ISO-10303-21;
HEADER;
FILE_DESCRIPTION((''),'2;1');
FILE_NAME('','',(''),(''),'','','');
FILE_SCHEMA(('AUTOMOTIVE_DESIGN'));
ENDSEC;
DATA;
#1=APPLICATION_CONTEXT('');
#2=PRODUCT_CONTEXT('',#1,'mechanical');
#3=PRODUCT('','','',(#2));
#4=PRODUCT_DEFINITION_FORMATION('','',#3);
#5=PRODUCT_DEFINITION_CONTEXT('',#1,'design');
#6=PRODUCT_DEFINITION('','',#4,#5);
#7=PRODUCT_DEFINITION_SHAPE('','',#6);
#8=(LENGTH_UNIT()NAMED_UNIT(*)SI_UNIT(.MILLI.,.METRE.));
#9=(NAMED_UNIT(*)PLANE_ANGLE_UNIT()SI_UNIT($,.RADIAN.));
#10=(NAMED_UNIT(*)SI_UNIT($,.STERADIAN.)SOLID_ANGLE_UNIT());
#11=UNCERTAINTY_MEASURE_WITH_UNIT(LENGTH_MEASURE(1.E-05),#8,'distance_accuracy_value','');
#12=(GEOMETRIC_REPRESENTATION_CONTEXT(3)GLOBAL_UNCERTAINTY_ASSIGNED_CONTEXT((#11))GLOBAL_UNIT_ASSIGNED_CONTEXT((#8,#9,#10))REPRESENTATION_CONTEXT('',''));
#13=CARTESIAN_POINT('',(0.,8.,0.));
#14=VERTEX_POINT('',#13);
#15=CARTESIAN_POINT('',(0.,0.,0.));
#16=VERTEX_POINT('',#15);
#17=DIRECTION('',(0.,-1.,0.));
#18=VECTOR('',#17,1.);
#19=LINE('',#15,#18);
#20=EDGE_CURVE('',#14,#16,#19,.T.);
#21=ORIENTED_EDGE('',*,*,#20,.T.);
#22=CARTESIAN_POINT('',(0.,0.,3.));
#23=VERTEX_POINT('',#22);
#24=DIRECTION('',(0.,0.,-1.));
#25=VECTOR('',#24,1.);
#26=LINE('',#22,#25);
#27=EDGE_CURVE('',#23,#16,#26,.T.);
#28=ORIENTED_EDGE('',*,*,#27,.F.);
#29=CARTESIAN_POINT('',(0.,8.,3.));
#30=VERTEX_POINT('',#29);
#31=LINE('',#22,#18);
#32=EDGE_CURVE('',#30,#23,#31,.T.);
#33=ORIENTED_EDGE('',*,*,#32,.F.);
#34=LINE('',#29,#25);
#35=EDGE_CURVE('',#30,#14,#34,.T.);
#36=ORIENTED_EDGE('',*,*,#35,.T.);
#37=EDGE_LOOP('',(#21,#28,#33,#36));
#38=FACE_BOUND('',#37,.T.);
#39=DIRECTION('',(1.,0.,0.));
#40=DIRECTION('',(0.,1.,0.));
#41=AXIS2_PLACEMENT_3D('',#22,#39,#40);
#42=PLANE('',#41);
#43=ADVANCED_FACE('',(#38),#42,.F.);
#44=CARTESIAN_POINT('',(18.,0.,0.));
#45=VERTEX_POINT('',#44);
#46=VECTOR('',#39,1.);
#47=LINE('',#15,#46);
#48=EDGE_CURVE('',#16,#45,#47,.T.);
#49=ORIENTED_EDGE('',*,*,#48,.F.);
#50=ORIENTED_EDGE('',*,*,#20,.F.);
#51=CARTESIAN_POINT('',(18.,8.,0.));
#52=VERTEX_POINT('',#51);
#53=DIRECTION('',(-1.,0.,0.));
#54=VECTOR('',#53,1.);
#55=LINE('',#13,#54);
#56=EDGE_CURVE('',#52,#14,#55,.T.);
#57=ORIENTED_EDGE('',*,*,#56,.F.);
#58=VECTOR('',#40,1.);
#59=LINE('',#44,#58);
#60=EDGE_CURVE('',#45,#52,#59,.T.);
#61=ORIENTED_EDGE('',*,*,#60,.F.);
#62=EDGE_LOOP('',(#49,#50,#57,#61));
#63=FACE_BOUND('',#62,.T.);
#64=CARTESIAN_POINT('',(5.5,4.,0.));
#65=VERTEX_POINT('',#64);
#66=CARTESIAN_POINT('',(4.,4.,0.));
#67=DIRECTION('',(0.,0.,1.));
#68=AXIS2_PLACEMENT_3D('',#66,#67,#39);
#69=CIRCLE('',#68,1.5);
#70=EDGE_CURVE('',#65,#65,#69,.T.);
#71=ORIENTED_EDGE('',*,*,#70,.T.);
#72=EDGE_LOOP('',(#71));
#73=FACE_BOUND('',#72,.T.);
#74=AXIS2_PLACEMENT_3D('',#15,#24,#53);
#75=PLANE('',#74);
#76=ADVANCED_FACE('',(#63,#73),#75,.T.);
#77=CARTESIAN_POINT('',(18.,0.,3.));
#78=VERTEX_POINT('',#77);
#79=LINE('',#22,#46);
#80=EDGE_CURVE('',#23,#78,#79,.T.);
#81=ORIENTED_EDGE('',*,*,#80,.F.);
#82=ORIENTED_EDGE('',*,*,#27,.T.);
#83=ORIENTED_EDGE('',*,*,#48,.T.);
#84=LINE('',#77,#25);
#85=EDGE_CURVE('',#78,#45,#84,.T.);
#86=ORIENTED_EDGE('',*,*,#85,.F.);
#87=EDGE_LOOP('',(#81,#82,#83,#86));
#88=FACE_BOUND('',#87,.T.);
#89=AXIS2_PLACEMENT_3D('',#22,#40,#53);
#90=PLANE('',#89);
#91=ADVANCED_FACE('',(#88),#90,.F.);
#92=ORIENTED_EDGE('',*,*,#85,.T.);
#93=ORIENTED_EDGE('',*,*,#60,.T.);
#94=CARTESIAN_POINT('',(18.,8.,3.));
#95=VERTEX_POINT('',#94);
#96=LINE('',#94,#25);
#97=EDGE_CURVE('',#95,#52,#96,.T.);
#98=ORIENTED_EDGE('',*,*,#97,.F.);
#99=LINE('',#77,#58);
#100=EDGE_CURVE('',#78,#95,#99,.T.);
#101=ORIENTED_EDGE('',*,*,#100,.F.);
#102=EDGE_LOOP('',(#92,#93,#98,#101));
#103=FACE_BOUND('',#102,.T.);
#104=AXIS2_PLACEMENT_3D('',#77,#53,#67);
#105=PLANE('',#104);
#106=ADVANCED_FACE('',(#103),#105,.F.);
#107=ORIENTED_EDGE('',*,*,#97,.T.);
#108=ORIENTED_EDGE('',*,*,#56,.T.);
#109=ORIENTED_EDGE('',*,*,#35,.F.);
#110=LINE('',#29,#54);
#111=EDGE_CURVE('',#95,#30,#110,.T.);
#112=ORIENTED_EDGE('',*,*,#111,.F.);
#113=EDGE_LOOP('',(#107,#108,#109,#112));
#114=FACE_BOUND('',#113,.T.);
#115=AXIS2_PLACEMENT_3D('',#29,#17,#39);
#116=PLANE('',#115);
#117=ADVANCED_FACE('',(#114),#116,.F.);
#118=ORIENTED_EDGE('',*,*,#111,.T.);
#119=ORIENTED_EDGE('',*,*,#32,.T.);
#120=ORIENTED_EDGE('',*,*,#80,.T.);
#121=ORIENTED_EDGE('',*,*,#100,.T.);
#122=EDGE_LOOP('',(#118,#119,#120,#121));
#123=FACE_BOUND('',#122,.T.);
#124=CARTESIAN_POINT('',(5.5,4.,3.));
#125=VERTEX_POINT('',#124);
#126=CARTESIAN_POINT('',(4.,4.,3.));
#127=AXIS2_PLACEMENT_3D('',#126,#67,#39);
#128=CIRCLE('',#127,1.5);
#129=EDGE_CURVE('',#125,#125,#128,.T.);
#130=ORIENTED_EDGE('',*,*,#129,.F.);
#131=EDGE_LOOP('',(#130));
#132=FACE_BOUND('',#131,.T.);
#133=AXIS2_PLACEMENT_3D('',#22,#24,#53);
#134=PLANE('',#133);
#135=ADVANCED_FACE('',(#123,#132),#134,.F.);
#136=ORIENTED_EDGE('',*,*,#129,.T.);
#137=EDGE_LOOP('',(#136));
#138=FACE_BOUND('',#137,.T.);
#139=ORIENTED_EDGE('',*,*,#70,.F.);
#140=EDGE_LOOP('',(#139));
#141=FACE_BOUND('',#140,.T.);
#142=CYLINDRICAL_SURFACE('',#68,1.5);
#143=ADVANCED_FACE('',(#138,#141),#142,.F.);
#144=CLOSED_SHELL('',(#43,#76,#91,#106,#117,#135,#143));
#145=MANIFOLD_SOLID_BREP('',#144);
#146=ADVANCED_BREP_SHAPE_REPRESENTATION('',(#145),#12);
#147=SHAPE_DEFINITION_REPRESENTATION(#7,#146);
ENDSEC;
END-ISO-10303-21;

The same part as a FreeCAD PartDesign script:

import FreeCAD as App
import Part
import Sketcher
Q = App.Units.Quantity


def add_polygon(sketch, points):
    """Adds a closed chain of lines whose ends are joined by coincident constraints."""
    first, n = sketch.GeometryCount, len(points)
    for a, b in zip(points, points[1:] + points[:1]):
        sketch.addGeometry(Part.LineSegment(App.Vector(*a, 0), App.Vector(*b, 0)), False)
    for i in range(n):
        sketch.addConstraint(Sketcher.Constraint("Coincident", first + i, 2, first + (i + 1) % n, 1))

doc = App.newDocument("Part")
body = doc.addObject("PartDesign::Body", "Body")

# Sketch on XY plane
sketch1 = body.newObject("Sketcher::SketchObject", "Sketch")
sketch1.AttachmentSupport = (doc.getObject("XY_Plane"), [""])
sketch1.MapMode = "FlatFace"
add_polygon(sketch1, [(0, 8), (0, 0), (18, 0), (18, 8)])  # lines 0-3
sketch1.addConstraint([
    Sketcher.Constraint("Vertical", 0),
    Sketcher.Constraint("Horizontal", 1),
    Sketcher.Constraint("Vertical", 2),
    Sketcher.Constraint("Horizontal", 3),
    Sketcher.Constraint("Coincident", 0, 2, -1, 1),
    Sketcher.Constraint("DistanceX", 1, 1, 1, 2, Q("18 mm")),
    Sketcher.Constraint("DistanceY", 0, 2, 0, 1, Q("8 mm")),
])
pad1 = body.newObject("PartDesign::Pad", "Pad")
pad1.Profile = sketch1
pad1.Length = 3

# Sketch on XY plane
sketch2 = body.newObject("Sketcher::SketchObject", "Sketch001")
sketch2.AttachmentSupport = (doc.getObject("XY_Plane"), [""])
sketch2.MapMode = "FlatFace"
sketch2.AttachmentOffset = App.Placement(App.Vector(0, 0, 3), App.Rotation())
sketch2.addGeometry(Part.Circle(App.Vector(4, 4, 0), App.Vector(0, 0, 1), 1.5), False)
sketch2.addConstraint([
    Sketcher.Constraint("Diameter", 0, Q("3 mm")),
    Sketcher.Constraint("DistanceX", -1, 1, 0, 3, Q("4 mm")),
    Sketcher.Constraint("DistanceY", -1, 1, 0, 3, Q("4 mm")),
])
pocket1 = body.newObject("PartDesign::Pocket", "Pocket")
pocket1.Profile = sketch2
pocket1.Type = "ThroughAll"

doc.recompute()
